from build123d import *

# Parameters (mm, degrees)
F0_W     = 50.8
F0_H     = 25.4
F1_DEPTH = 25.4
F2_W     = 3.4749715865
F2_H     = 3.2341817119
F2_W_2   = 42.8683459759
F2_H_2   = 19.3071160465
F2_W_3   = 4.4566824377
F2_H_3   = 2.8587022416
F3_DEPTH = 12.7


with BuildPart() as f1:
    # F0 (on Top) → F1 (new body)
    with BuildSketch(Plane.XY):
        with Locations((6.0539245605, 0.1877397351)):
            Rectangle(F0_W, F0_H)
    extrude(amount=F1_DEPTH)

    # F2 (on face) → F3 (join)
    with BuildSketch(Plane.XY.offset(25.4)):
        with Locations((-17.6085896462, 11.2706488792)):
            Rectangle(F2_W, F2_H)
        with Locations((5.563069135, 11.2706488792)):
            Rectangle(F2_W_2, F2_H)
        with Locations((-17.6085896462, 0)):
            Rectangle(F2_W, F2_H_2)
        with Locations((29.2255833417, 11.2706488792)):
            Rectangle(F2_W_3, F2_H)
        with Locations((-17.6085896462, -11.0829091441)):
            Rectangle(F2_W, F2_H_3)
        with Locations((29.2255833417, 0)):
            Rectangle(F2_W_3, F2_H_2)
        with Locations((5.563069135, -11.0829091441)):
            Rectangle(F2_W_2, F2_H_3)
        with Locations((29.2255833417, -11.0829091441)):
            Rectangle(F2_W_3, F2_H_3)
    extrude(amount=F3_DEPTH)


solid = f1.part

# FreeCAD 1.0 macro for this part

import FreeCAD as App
import Part
import Sketcher
from FreeCAD import Vector
Q = App.Units.Quantity


def add_polygon(sketch, points):
    """Adds a closed chain of lines whose ends are joined by coincident constraints."""
    first, n = sketch.GeometryCount, len(points)
    for a, b in zip(points, points[1:] + points[:1]):
        sketch.addGeometry(Part.LineSegment(App.Vector(*a, 0), App.Vector(*b, 0)), False)
    for i in range(n):
        sketch.addConstraint(Sketcher.Constraint("Coincident", first + i, 2, first + (i + 1) % n, 1))

doc = App.newDocument("Part")
params = doc.addObject("Spreadsheet::Sheet", "Params")
for row, (alias, value) in enumerate([
    ("sketch1_width", "2 in"),
    ("sketch1_height", "1 in"),
    ("pad1_length", "1 in"),
    ("sketch2_width", "2 in"),
    ("sketch2_height", "1 in"),
    ("pad2_length", "0.5 in"),
], start=1):
    params.set(f"A{row}", alias)
    params.set(f"B{row}", "=" + value)
    params.setAlias(f"B{row}", alias)

body = doc.addObject("PartDesign::Body", "Body")

# Sketch on XY plane
sketch1 = body.newObject("Sketcher::SketchObject", "Sketch")
sketch1.AttachmentSupport = (doc.getObject("XY_Plane"), [""])
sketch1.MapMode = "FlatFace"
add_polygon(sketch1, [(-19, 13), (-19, -13), (31, -13), (31, 13)])  # lines 0-3
sketch1.addConstraint(Sketcher.Constraint("Vertical", 0))
sketch1.addConstraint(Sketcher.Constraint("Horizontal", 1))
sketch1.addConstraint(Sketcher.Constraint("Vertical", 2))
sketch1.addConstraint(Sketcher.Constraint("Horizontal", 3))
sketch1.addConstraint(Sketcher.Constraint("DistanceX", 1, 1, 1, 2, Q("2 in")))
sketch1.addConstraint(Sketcher.Constraint("DistanceY", 0, 2, 0, 1, Q("1 in")))
sketch1.addConstraint(Sketcher.Constraint("DistanceY", 0, 2, -1, 1, Q("12.51226 mm")))
sketch1.addConstraint(Sketcher.Constraint("DistanceX", 0, 2, -1, 1, Q("19.346075 mm")))
sketch1.setExpression("Constraints[8]", "Params.sketch1_width")
sketch1.setExpression("Constraints[9]", "Params.sketch1_height")
pad1 = body.newObject("PartDesign::Pad", "Pad")
pad1.Profile = sketch1
pad1.setExpression("Length", "Params.pad1_length")

# Sketch on XY plane
sketch2 = body.newObject("Sketcher::SketchObject", "Sketch001")
sketch2.AttachmentSupport = (doc.getObject("XY_Plane"), [""])
sketch2.MapMode = "FlatFace"
sketch2.AttachmentOffset = App.Placement(Vector(0, 0, 1 * 25.4), App.Rotation())
add_polygon(sketch2, [(-19, -13), (31, -13), (31, 13), (-19, 13)])  # lines 0-3
add_polygon(sketch2, [(27, -10), (-16, -10), (-16, 10), (27, 10)])  # lines 4-7
sketch2.addConstraint(Sketcher.Constraint("Horizontal", 0))
sketch2.addConstraint(Sketcher.Constraint("Vertical", 1))
sketch2.addConstraint(Sketcher.Constraint("Horizontal", 2))
sketch2.addConstraint(Sketcher.Constraint("Vertical", 3))
sketch2.addConstraint(Sketcher.Constraint("Horizontal", 4))
sketch2.addConstraint(Sketcher.Constraint("Vertical", 5))
sketch2.addConstraint(Sketcher.Constraint("Horizontal", 6))
sketch2.addConstraint(Sketcher.Constraint("Vertical", 7))
sketch2.addConstraint(Sketcher.Constraint("DistanceX", 0, 1, 0, 2, Q("2 in")))
sketch2.addConstraint(Sketcher.Constraint("DistanceY", 1, 1, 1, 2, Q("1 in")))
sketch2.addConstraint(Sketcher.Constraint("DistanceX", 4, 2, 4, 1, Q("42.868346 mm")))
sketch2.addConstraint(Sketcher.Constraint("DistanceY", 5, 1, 5, 2, Q("19.307116 mm")))
sketch2.addConstraint(Sketcher.Constraint("DistanceY", 0, 2, -1, 1, Q("12.51226 mm")))
sketch2.addConstraint(Sketcher.Constraint("DistanceY", 4, 2, -1, 1, Q("9.653558 mm")))
sketch2.addConstraint(Sketcher.Constraint("DistanceX", 3, 2, 4, 2, Q("3.474972 mm")))
sketch2.addConstraint(Sketcher.Constraint("DistanceX", -1, 1, 0, 2, Q("31.453925 mm")))
sketch2.setExpression("Constraints[16]", "Params.sketch2_width")
sketch2.setExpression("Constraints[17]", "Params.sketch2_height")
pad2 = body.newObject("PartDesign::Pad", "Pad001")
pad2.Profile = sketch2
pad2.setExpression("Length", "Params.pad2_length")

doc.recompute()
